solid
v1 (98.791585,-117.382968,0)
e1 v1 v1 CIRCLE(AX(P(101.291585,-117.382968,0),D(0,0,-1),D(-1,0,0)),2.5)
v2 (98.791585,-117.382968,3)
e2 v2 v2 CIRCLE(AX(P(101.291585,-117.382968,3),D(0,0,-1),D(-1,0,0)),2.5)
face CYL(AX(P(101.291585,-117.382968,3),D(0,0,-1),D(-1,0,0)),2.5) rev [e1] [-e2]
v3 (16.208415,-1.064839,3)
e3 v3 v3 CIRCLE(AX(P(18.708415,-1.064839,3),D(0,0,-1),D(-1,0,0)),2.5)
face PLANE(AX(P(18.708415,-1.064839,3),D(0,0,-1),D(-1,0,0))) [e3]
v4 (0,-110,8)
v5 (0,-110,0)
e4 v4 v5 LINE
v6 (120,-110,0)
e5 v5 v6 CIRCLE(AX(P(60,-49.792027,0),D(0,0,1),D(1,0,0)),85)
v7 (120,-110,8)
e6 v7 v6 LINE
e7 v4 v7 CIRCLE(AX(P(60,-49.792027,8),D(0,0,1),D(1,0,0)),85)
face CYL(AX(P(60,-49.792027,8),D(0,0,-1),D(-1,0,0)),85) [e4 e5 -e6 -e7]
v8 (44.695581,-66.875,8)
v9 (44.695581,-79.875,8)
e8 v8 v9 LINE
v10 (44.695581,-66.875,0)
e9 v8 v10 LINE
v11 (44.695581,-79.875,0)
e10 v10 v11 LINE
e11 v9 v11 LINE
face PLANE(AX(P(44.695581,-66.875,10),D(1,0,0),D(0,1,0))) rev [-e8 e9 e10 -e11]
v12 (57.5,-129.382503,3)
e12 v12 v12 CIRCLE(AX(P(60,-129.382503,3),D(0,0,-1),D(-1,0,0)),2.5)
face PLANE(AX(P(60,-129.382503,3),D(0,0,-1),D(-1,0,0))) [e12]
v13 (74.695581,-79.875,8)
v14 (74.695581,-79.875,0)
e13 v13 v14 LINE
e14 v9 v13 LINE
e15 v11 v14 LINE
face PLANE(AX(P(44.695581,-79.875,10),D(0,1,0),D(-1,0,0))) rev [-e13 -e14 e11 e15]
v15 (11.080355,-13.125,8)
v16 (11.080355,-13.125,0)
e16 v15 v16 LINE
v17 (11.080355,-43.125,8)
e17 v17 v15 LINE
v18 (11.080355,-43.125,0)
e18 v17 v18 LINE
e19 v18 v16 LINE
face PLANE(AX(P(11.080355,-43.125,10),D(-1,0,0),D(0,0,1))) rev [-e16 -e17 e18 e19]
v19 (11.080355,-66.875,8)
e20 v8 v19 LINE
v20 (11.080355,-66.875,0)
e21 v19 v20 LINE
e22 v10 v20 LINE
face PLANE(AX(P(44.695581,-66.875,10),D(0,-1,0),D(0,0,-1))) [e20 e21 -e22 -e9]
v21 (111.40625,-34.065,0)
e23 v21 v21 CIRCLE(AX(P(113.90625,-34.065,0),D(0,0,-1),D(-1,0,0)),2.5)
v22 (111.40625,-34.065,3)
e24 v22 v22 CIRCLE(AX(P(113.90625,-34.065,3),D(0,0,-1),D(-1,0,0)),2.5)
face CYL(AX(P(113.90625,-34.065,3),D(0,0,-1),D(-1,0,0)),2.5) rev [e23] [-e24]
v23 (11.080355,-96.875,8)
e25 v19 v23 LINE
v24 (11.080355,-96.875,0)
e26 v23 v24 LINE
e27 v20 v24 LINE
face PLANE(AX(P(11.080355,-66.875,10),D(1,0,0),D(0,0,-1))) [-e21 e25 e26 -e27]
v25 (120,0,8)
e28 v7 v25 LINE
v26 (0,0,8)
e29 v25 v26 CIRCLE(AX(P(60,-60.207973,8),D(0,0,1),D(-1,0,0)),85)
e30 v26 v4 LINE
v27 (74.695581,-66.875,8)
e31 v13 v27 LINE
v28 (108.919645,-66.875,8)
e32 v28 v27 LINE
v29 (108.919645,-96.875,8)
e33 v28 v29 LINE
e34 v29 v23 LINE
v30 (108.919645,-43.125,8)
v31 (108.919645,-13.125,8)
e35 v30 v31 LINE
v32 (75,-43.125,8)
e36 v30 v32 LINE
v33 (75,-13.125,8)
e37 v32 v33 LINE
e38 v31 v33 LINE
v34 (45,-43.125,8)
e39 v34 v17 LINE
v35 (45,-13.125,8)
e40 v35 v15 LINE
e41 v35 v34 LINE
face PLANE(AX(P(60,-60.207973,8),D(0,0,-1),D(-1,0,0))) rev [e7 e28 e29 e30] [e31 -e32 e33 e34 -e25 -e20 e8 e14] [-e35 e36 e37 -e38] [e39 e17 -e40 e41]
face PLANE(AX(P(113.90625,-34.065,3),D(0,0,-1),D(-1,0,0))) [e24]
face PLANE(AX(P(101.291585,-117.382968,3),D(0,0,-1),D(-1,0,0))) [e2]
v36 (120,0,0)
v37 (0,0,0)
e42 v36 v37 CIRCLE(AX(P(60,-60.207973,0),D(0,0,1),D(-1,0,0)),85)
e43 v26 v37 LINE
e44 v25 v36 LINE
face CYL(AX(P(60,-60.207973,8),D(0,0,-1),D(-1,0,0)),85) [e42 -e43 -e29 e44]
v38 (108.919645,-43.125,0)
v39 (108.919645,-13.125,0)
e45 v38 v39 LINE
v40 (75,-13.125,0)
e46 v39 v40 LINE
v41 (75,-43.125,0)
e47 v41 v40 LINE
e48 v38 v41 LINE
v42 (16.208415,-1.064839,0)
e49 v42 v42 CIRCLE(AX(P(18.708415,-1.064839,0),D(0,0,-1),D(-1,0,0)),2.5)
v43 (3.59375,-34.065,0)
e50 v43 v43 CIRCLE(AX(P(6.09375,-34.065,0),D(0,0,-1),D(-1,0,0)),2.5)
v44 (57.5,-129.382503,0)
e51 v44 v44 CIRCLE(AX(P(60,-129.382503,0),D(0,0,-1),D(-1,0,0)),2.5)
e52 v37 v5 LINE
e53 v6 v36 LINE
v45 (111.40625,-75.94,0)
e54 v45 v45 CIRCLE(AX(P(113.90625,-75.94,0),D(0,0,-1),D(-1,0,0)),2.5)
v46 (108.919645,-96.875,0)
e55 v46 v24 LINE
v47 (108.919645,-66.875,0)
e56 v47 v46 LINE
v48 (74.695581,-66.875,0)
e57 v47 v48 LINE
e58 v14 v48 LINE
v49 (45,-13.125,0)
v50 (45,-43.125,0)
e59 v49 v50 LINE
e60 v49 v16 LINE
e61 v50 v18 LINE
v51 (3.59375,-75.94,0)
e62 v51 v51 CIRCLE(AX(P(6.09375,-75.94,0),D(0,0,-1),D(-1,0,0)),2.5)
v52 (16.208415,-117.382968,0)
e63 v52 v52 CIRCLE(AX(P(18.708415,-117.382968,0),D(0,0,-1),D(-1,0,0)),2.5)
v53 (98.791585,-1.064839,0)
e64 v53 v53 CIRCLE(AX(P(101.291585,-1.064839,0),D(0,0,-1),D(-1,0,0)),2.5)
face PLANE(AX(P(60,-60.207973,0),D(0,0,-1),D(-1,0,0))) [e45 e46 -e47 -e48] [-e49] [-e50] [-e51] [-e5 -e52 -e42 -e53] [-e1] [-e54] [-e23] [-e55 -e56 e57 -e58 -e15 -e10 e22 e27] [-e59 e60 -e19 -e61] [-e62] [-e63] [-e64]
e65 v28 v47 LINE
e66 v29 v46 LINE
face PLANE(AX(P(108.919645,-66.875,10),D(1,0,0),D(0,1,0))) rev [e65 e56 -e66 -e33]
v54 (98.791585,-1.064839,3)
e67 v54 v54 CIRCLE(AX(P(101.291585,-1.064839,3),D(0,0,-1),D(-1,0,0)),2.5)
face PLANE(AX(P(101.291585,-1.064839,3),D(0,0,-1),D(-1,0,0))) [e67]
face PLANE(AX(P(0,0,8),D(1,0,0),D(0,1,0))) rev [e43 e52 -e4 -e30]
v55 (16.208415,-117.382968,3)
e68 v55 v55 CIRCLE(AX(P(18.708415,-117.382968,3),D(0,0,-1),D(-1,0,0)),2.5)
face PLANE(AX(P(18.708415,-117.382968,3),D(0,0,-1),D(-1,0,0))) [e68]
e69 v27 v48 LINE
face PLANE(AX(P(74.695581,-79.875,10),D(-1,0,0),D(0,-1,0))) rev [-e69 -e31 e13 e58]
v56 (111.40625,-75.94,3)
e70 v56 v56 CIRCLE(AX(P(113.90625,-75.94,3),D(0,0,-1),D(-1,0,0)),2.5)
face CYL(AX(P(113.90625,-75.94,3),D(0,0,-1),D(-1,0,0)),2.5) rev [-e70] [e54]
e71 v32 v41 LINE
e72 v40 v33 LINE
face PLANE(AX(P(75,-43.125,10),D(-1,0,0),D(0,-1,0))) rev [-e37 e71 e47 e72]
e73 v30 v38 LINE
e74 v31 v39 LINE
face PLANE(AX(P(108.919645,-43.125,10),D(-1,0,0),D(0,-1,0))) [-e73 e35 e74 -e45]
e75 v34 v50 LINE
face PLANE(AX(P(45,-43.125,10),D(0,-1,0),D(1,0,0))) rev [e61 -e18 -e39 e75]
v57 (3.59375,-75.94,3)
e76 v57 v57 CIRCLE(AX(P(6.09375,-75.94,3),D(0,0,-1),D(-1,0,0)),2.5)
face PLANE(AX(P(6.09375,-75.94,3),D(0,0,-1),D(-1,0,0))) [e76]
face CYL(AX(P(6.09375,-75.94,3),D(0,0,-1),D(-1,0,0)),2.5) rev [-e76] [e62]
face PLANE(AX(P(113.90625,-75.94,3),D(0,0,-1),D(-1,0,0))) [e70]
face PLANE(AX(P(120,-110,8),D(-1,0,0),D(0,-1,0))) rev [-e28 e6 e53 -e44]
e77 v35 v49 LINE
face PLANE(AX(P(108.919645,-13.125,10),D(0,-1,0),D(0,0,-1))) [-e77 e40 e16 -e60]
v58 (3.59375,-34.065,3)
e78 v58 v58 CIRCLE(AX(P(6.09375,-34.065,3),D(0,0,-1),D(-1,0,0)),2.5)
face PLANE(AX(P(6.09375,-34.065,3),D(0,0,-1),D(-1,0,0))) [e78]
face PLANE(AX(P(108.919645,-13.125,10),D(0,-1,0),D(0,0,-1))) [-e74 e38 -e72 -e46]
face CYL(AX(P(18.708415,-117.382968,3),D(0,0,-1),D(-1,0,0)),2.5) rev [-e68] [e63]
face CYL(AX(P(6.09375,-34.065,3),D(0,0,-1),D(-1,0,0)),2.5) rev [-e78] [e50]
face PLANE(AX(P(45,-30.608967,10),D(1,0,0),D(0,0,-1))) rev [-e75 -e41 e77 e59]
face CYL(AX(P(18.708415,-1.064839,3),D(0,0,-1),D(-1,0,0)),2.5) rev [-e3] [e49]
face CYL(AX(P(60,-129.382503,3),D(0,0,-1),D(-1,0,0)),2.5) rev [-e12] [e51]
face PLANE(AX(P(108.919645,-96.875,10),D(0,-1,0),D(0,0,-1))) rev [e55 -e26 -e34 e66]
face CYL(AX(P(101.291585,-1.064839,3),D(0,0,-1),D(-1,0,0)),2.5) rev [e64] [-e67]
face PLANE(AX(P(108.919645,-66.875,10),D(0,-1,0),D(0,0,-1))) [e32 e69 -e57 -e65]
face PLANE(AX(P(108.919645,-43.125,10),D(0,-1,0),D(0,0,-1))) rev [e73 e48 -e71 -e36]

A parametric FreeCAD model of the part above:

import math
import FreeCAD as App
import Part
import Sketcher
from FreeCAD import Vector
Q = App.Units.Quantity


def add_polygon(sketch, points):
    """Adds a closed chain of lines whose ends are joined by coincident constraints."""
    first, n = sketch.GeometryCount, len(points)
    for a, b in zip(points, points[1:] + points[:1]):
        sketch.addGeometry(Part.LineSegment(App.Vector(*a, 0), App.Vector(*b, 0)), False)
    for i in range(n):
        sketch.addConstraint(Sketcher.Constraint("Coincident", first + i, 2, first + (i + 1) % n, 1))

doc = App.newDocument("Part")
params = doc.addObject("Spreadsheet::Sheet", "Params")
for row, (alias, value) in enumerate([
    ("sketch1_radius", "85 mm"),
    ("sketch1_height", "110 mm"),
    ("pad1_length", "8 mm"),
    ("sketch2_width", "30 mm"),
    ("sketch2_height", "13 mm"),
    ("pocket1_length", "10 mm"),
    ("sketch3_width", "30 mm"),
    ("sketch3_height", "8 mm"),
    ("sketch4_diameter", "5 mm"),
    ("pocket2_length", "3 mm"),
], start=1):
    params.set(f"A{row}", alias)
    params.set(f"B{row}", "=" + value)
    params.setAlias(f"B{row}", alias)

body = doc.addObject("PartDesign::Body", "Body")

sketch1 = body.newObject("Sketcher::SketchObject", "Sketch")
sketch1.AttachmentSupport = (doc.getObject("XY_Plane"), [""])
sketch1.MapMode = "FlatFace"
sketch1.addGeometry(Part.LineSegment(Vector(0, 0, 0), Vector(0, -110, 0)), False)
sketch1.addGeometry(Part.ArcOfCircle(Part.Circle(Vector(60, -50, 0), Vector(0, 0, 1), 85), math.radians(-135), math.radians(-45)), False)
sketch1.addGeometry(Part.LineSegment(Vector(120, -110, 0), Vector(120, 0, 0)), False)
sketch1.addGeometry(Part.ArcOfCircle(Part.Circle(Vector(60, -60, 0), Vector(0, 0, 1), 85), math.radians(45), math.radians(135)), False)
sketch1.addConstraint(Sketcher.Constraint("Coincident", 0, 2, 1, 1))
sketch1.addConstraint(Sketcher.Constraint("Coincident", 1, 2, 2, 1))
sketch1.addConstraint(Sketcher.Constraint("Coincident", 2, 2, 3, 1))
sketch1.addConstraint(Sketcher.Constraint("Coincident", 3, 2, 0, 1))
sketch1.addConstraint(Sketcher.Constraint("Vertical", 0))
sketch1.addConstraint(Sketcher.Constraint("Vertical", 2))
sketch1.addConstraint(Sketcher.Constraint("Coincident", 3, 2, -1, 1))
sketch1.addConstraint(Sketcher.Constraint("Equal", 1, 3))
sketch1.addConstraint(Sketcher.Constraint("PointOnObject", 2, 2, -1))
sketch1.addConstraint(Sketcher.Constraint("Horizontal", 0, 2, 1, 2))
sketch1.addConstraint(Sketcher.Constraint("Radius", 1, Q("85 mm")))
sketch1.addConstraint(Sketcher.Constraint("DistanceY", 0, 2, 0, 1, Q("110 mm")))
sketch1.addConstraint(Sketcher.Constraint("DistanceX", -1, 1, 1, 3, Q("60 mm")))
sketch1.setExpression("Constraints[10]", "Params.sketch1_radius")
sketch1.setExpression("Constraints[11]", "Params.sketch1_height")
pad1 = body.newObject("PartDesign::Pad", "Pad")
pad1.Profile = sketch1
pad1.setExpression("Length", "Params.pad1_length")

sketch2 = body.newObject("Sketcher::SketchObject", "Sketch001")
sketch2.AttachmentSupport = (doc.getObject("XY_Plane"), [""])
sketch2.MapMode = "FlatFace"
add_polygon(sketch2, [(109, -97), (11, -97), (11, -67), (45, -67), (45, -80), (75, -80), (75, -67), (109, -67)])
add_polygon(sketch2, [(109, -43), (75, -43), (75, -31), (45, -31), (45, -43), (11, -43), (11, -13), (109, -13)])
sketch2.addConstraint(Sketcher.Constraint("Horizontal", 0))
sketch2.addConstraint(Sketcher.Constraint("Vertical", 1))
sketch2.addConstraint(Sketcher.Constraint("Horizontal", 2))
sketch2.addConstraint(Sketcher.Constraint("Vertical", 3))
sketch2.addConstraint(Sketcher.Constraint("Horizontal", 4))
sketch2.addConstraint(Sketcher.Constraint("Vertical", 5))
sketch2.addConstraint(Sketcher.Constraint("Horizontal", 6))
sketch2.addConstraint(Sketcher.Constraint("Vertical", 7))
sketch2.addConstraint(Sketcher.Constraint("Horizontal", 8))
sketch2.addConstraint(Sketcher.Constraint("Vertical", 9))
sketch2.addConstraint(Sketcher.Constraint("Horizontal", 10))
sketch2.addConstraint(Sketcher.Constraint("Vertical", 11))
sketch2.addConstraint(Sketcher.Constraint("Horizontal", 12))
sketch2.addConstraint(Sketcher.Constraint("Vertical", 13))
sketch2.addConstraint(Sketcher.Constraint("Horizontal", 14))
sketch2.addConstraint(Sketcher.Constraint("Vertical", 15))
sketch2.addConstraint(Sketcher.Constraint("Horizontal", 2, 2, 5, 2))
sketch2.addConstraint(Sketcher.Constraint("Horizontal", 8, 2, 11, 2))
sketch2.addConstraint(Sketcher.Constraint("Vertical", 1, 2, 12, 2))
sketch2.addConstraint(Sketcher.Constraint("Vertical", 7, 2, 14, 2))
sketch2.addConstraint(Sketcher.Constraint("Equal", 4, 10))
sketch2.addConstraint(Sketcher.Constraint("Equal", 8, 12))
sketch2.addConstraint(Sketcher.Constraint("Equal", 10, 1))
sketch2.addConstraint(Sketcher.Constraint("Equal", 7, 13))
sketch2.addConstraint(Sketcher.Constraint("DistanceX", 4, 1, 4, 2, Q("30 mm")))
sketch2.addConstraint(Sketcher.Constraint("DistanceY", 3, 2, 3, 1, Q("13 mm")))
sketch2.addConstraint(Sketcher.Constraint("DistanceX", -1, 1, 8, 2, Q("75 mm")))
sketch2.addConstraint(Sketcher.Constraint("DistanceY", 5, 2, 8, 2, Q("23.75 mm")))
sketch2.addConstraint(Sketcher.Constraint("DistanceY", 0, 2, -1, 1, Q("96.875 mm")))
sketch2.addConstraint(Sketcher.Constraint("DistanceX", 0, 2, 0, 1, Q("97.839289 mm")))
sketch2.addConstraint(Sketcher.Constraint("DistanceX", 2, 1, 2, 2, Q("33.615226 mm")))
sketch2.addConstraint(Sketcher.Constraint("DistanceY", 9, 1, 9, 2, Q("12.516033 mm")))
sketch2.setExpression("Constraints[40]", "Params.sketch2_width")
sketch2.setExpression("Constraints[41]", "Params.sketch2_height")
pocket1 = body.newObject("PartDesign::Pocket", "Pocket")
pocket1.Profile = sketch2
pocket1.setExpression("Length", "Params.pocket1_length")
pocket1.Reversed = True

sketch3 = body.newObject("Sketcher::SketchObject", "Sketch002")
sketch3.AttachmentSupport = (doc.getObject("XZ_Plane"), [""])
sketch3.MapMode = "FlatFace"
sketch3.AttachmentOffset = App.Placement(Vector(0, 0, 30.608967), App.Rotation())
add_polygon(sketch3, [(45, 0), (45, 8), (75, 8), (75, 0)])
sketch3.addConstraint(Sketcher.Constraint("Vertical", 0))
sketch3.addConstraint(Sketcher.Constraint("Horizontal", 1))
sketch3.addConstraint(Sketcher.Constraint("Vertical", 2))
sketch3.addConstraint(Sketcher.Constraint("Horizontal", 3))
sketch3.addConstraint(Sketcher.Constraint("PointOnObject", 2, 2, -1))
sketch3.addConstraint(Sketcher.Constraint("DistanceX", 1, 1, 1, 2, Q("30 mm")))
sketch3.addConstraint(Sketcher.Constraint("DistanceY", 0, 1, 0, 2, Q("8 mm")))
sketch3.addConstraint(Sketcher.Constraint("DistanceX", -1, 1, 0, 2, Q("45 mm")))
sketch3.setExpression("Constraints[9]", "Params.sketch3_width")
sketch3.setExpression("Constraints[10]", "Params.sketch3_height")
pad2 = body.newObject("PartDesign::Pad", "Pad001")
pad2.Profile = sketch3
pad2.Type = "UpToFirst"
pad2.Reversed = True

sketch4 = body.newObject("Sketcher::SketchObject", "Sketch003")
sketch4.AttachmentSupport = (doc.getObject("XY_Plane"), [""])
sketch4.MapMode = "FlatFace"
sketch4.addGeometry(Part.Circle(Vector(18.7, -1.1, 0), Vector(0, 0, 1), 2.5), False)
sketch4.addGeometry(Part.Circle(Vector(6.1, -34.1, 0), Vector(0, 0, 1), 2.5), False)
sketch4.addGeometry(Part.Circle(Vector(6.1, -75.9, 0), Vector(0, 0, 1), 2.5), False)
sketch4.addGeometry(Part.Circle(Vector(18.7, -117.4, 0), Vector(0, 0, 1), 2.5), False)
sketch4.addGeometry(Part.Circle(Vector(60, -129.4, 0), Vector(0, 0, 1), 2.5), False)
sketch4.addGeometry(Part.Circle(Vector(101.3, -117.4, 0), Vector(0, 0, 1), 2.5), False)
sketch4.addGeometry(Part.Circle(Vector(113.9, -75.9, 0), Vector(0, 0, 1), 2.5), False)
sketch4.addGeometry(Part.Circle(Vector(113.9, -34.1, 0), Vector(0, 0, 1), 2.5), False)
sketch4.addGeometry(Part.Circle(Vector(101.3, -1.1, 0), Vector(0, 0, 1), 2.5), False)
sketch4.addConstraint(Sketcher.Constraint("Equal", 0, 1))
sketch4.addConstraint(Sketcher.Constraint("Equal", 1, 2))
sketch4.addConstraint(Sketcher.Constraint("Equal", 2, 3))
sketch4.addConstraint(Sketcher.Constraint("Equal", 3, 4))
sketch4.addConstraint(Sketcher.Constraint("Equal", 4, 5))
sketch4.addConstraint(Sketcher.Constraint("Equal", 5, 6))
sketch4.addConstraint(Sketcher.Constraint("Equal", 6, 7))
sketch4.addConstraint(Sketcher.Constraint("Equal", 7, 8))
sketch4.addConstraint(Sketcher.Constraint("Horizontal", 3, 3, 5, 3))
sketch4.addConstraint(Sketcher.Constraint("Horizontal", 2, 3, 6, 3))
sketch4.addConstraint(Sketcher.Constraint("Horizontal", 1, 3, 7, 3))
sketch4.addConstraint(Sketcher.Constraint("Horizontal", 0, 3, 8, 3))
sketch4.addConstraint(Sketcher.Constraint("Vertical", 1, 3, 2, 3))
sketch4.addConstraint(Sketcher.Constraint("Vertical", 0, 3, 3, 3))
sketch4.addConstraint(Sketcher.Constraint("Vertical", 6, 3, 7, 3))
sketch4.addConstraint(Sketcher.Constraint("Vertical", 5, 3, 8, 3))
sketch4.addConstraint(Sketcher.Constraint("Diameter", 0, Q("5 mm")))
sketch4.addConstraint(Sketcher.Constraint("DistanceX", -1, 1, 4, 3, Q("60 mm")))
sketch4.addConstraint(Sketcher.Constraint("DistanceY", 2, 3, -1, 1, Q("75.94 mm")))
sketch4.addConstraint(Sketcher.Constraint("DistanceY", 1, 3, -1, 1, Q("34.065 mm")))
sketch4.addConstraint(Sketcher.Constraint("DistanceX", 2, 3, 6, 3, Q("107.8125 mm")))
sketch4.addConstraint(Sketcher.Constraint("DistanceY", 0, 3, -1, 1, Q("1.064839 mm")))
sketch4.addConstraint(Sketcher.Constraint("DistanceX", -1, 1, 1, 3, Q("6.09375 mm")))
sketch4.addConstraint(Sketcher.Constraint("DistanceY", 3, 3, 0, 3, Q("116.318129 mm")))
sketch4.addConstraint(Sketcher.Constraint("DistanceX", 3, 3, 5, 3, Q("82.58317 mm")))
sketch4.addConstraint(Sketcher.Constraint("DistanceX", -1, 1, 0, 3, Q("18.708415 mm")))
sketch4.addConstraint(Sketcher.Constraint("DistanceY", 4, 3, -1, 1, Q("129.382503 mm")))
sketch4.setExpression("Constraints[16]", "Params.sketch4_diameter")
pocket2 = body.newObject("PartDesign::Pocket", "Pocket001")
pocket2.Profile = sketch4
pocket2.setExpression("Length", "Params.pocket2_length")
pocket2.Reversed = True

doc.recompute()
